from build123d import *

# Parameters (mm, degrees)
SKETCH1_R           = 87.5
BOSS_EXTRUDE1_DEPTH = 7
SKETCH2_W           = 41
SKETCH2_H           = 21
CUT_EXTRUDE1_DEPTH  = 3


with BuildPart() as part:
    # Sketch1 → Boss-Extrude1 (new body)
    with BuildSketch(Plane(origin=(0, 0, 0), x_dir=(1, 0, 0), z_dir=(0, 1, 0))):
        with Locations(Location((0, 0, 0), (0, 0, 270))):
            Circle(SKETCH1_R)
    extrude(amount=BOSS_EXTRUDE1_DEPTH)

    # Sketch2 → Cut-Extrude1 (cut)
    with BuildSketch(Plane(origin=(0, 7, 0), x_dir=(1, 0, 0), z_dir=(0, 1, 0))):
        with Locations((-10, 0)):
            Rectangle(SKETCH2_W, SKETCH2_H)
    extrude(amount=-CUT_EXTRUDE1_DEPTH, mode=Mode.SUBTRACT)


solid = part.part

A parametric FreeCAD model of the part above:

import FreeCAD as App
import Part
import Sketcher

doc = App.newDocument("Part")
body = doc.addObject("PartDesign::Body", "Body")

sketch1 = body.newObject("Sketcher::SketchObject", "Sketch")
sketch1.AttachmentSupport = (doc.getObject("XZ_Plane"), [""])
sketch1.MapMode = "FlatFace"
sketch1.addGeometry(Part.Circle(App.Vector(0, 0, 0), App.Vector(0, 0, 1), 87.5), False)
sketch1.addConstraint(Sketcher.Constraint("Coincident", 0, 3, -1, 1))
sketch1.addConstraint(Sketcher.Constraint("Diameter", 0, 175.0))
pad1 = body.newObject("PartDesign::Pad", "Pad")
pad1.Profile = sketch1
pad1.Length = 7
pad1.Reversed = True

sketch2 = body.newObject("Sketcher::SketchObject", "Sketch001")
sketch2.AttachmentSupport = (doc.getObject("XZ_Plane"), [""])
sketch2.MapMode = "FlatFace"
sketch2.AttachmentOffset = App.Placement(App.Vector(0, 0, -7), App.Rotation())
sketch2.addGeometry(Part.LineSegment(App.Vector(-30.5, -10.5, 0), App.Vector(-30.5, 10.5, 0)), False)
sketch2.addGeometry(Part.LineSegment(App.Vector(-30.5, 10.5, 0), App.Vector(10.5, 10.5, 0)), False)
sketch2.addGeometry(Part.LineSegment(App.Vector(10.5, 10.5, 0), App.Vector(10.5, -10.5, 0)), False)
sketch2.addGeometry(Part.LineSegment(App.Vector(10.5, -10.5, 0), App.Vector(-30.5, -10.5, 0)), False)
sketch2.addConstraint(Sketcher.Constraint("Coincident", 0, 2, 1, 1))
sketch2.addConstraint(Sketcher.Constraint("Coincident", 1, 2, 2, 1))
sketch2.addConstraint(Sketcher.Constraint("Coincident", 2, 2, 3, 1))
sketch2.addConstraint(Sketcher.Constraint("Coincident", 3, 2, 0, 1))
sketch2.addConstraint(Sketcher.Constraint("Vertical", 0))
sketch2.addConstraint(Sketcher.Constraint("Horizontal", 1))
sketch2.addConstraint(Sketcher.Constraint("Vertical", 2))
sketch2.addConstraint(Sketcher.Constraint("Horizontal", 3))
sketch2.addConstraint(Sketcher.Constraint("DistanceX", 1, 1, 1, 2, 41.0))
sketch2.addConstraint(Sketcher.Constraint("DistanceY", 0, 1, 0, 2, 21.0))
sketch2.addConstraint(Sketcher.Constraint("DistanceX", 0, 2, -1, 1, 30.5))
sketch2.addConstraint(Sketcher.Constraint("DistanceY", -1, 1, 0, 2, 10.5))
pocket1 = body.newObject("PartDesign::Pocket", "Pocket")
pocket1.Profile = sketch2
pocket1.Length = 3
pocket1.Reversed = True

doc.recompute()
